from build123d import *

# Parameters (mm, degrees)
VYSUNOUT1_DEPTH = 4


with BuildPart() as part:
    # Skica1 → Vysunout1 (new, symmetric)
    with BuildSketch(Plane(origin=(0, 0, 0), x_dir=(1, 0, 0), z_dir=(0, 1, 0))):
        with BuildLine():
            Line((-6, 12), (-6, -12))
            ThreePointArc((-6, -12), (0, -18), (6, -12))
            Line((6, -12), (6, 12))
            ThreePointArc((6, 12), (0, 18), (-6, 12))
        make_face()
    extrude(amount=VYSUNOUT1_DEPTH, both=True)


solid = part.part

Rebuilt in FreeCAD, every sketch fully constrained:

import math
import FreeCAD as App
import Part
import Sketcher
Q = App.Units.Quantity

doc = App.newDocument("Part")
body = doc.addObject("PartDesign::Body", "Body")

# Sketch on XZ plane
sketch1 = body.newObject("Sketcher::SketchObject", "Sketch")
sketch1.AttachmentSupport = (doc.getObject("XZ_Plane"), [""])
sketch1.MapMode = "FlatFace"
sketch1.addGeometry(Part.LineSegment(App.Vector(-6, -12, 0), App.Vector(-6, 12, 0)), False)
sketch1.addGeometry(Part.ArcOfCircle(Part.Circle(App.Vector(0, 12, 0), App.Vector(0, 0, 1), 6), math.radians(0), math.radians(180)), False)
sketch1.addGeometry(Part.LineSegment(App.Vector(6, 12, 0), App.Vector(6, -12, 0)), False)
sketch1.addGeometry(Part.ArcOfCircle(Part.Circle(App.Vector(0, -12, 0), App.Vector(0, 0, 1), 6), math.radians(180), math.radians(360)), False)
sketch1.addConstraint(Sketcher.Constraint("Tangent", 0, 2, 1, 2))
sketch1.addConstraint(Sketcher.Constraint("Tangent", 1, 1, 2, 1))
sketch1.addConstraint(Sketcher.Constraint("Tangent", 2, 2, 3, 2))
sketch1.addConstraint(Sketcher.Constraint("Tangent", 3, 1, 0, 1))
sketch1.addConstraint(Sketcher.Constraint("Vertical", 0))
sketch1.addConstraint(Sketcher.Constraint("Vertical", 2))
sketch1.addConstraint(Sketcher.Constraint("Symmetric", 1, 3, 3, 3, -1, 1))
sketch1.addConstraint(Sketcher.Constraint("Radius", 1, Q("6 mm")))
sketch1.addConstraint(Sketcher.Constraint("DistanceY", 0, 1, 0, 2, Q("24 mm")))
pad1 = body.newObject("PartDesign::Pad", "Pad")
pad1.Profile = sketch1
pad1.Length = 8
pad1.Midplane = True

doc.recompute()
